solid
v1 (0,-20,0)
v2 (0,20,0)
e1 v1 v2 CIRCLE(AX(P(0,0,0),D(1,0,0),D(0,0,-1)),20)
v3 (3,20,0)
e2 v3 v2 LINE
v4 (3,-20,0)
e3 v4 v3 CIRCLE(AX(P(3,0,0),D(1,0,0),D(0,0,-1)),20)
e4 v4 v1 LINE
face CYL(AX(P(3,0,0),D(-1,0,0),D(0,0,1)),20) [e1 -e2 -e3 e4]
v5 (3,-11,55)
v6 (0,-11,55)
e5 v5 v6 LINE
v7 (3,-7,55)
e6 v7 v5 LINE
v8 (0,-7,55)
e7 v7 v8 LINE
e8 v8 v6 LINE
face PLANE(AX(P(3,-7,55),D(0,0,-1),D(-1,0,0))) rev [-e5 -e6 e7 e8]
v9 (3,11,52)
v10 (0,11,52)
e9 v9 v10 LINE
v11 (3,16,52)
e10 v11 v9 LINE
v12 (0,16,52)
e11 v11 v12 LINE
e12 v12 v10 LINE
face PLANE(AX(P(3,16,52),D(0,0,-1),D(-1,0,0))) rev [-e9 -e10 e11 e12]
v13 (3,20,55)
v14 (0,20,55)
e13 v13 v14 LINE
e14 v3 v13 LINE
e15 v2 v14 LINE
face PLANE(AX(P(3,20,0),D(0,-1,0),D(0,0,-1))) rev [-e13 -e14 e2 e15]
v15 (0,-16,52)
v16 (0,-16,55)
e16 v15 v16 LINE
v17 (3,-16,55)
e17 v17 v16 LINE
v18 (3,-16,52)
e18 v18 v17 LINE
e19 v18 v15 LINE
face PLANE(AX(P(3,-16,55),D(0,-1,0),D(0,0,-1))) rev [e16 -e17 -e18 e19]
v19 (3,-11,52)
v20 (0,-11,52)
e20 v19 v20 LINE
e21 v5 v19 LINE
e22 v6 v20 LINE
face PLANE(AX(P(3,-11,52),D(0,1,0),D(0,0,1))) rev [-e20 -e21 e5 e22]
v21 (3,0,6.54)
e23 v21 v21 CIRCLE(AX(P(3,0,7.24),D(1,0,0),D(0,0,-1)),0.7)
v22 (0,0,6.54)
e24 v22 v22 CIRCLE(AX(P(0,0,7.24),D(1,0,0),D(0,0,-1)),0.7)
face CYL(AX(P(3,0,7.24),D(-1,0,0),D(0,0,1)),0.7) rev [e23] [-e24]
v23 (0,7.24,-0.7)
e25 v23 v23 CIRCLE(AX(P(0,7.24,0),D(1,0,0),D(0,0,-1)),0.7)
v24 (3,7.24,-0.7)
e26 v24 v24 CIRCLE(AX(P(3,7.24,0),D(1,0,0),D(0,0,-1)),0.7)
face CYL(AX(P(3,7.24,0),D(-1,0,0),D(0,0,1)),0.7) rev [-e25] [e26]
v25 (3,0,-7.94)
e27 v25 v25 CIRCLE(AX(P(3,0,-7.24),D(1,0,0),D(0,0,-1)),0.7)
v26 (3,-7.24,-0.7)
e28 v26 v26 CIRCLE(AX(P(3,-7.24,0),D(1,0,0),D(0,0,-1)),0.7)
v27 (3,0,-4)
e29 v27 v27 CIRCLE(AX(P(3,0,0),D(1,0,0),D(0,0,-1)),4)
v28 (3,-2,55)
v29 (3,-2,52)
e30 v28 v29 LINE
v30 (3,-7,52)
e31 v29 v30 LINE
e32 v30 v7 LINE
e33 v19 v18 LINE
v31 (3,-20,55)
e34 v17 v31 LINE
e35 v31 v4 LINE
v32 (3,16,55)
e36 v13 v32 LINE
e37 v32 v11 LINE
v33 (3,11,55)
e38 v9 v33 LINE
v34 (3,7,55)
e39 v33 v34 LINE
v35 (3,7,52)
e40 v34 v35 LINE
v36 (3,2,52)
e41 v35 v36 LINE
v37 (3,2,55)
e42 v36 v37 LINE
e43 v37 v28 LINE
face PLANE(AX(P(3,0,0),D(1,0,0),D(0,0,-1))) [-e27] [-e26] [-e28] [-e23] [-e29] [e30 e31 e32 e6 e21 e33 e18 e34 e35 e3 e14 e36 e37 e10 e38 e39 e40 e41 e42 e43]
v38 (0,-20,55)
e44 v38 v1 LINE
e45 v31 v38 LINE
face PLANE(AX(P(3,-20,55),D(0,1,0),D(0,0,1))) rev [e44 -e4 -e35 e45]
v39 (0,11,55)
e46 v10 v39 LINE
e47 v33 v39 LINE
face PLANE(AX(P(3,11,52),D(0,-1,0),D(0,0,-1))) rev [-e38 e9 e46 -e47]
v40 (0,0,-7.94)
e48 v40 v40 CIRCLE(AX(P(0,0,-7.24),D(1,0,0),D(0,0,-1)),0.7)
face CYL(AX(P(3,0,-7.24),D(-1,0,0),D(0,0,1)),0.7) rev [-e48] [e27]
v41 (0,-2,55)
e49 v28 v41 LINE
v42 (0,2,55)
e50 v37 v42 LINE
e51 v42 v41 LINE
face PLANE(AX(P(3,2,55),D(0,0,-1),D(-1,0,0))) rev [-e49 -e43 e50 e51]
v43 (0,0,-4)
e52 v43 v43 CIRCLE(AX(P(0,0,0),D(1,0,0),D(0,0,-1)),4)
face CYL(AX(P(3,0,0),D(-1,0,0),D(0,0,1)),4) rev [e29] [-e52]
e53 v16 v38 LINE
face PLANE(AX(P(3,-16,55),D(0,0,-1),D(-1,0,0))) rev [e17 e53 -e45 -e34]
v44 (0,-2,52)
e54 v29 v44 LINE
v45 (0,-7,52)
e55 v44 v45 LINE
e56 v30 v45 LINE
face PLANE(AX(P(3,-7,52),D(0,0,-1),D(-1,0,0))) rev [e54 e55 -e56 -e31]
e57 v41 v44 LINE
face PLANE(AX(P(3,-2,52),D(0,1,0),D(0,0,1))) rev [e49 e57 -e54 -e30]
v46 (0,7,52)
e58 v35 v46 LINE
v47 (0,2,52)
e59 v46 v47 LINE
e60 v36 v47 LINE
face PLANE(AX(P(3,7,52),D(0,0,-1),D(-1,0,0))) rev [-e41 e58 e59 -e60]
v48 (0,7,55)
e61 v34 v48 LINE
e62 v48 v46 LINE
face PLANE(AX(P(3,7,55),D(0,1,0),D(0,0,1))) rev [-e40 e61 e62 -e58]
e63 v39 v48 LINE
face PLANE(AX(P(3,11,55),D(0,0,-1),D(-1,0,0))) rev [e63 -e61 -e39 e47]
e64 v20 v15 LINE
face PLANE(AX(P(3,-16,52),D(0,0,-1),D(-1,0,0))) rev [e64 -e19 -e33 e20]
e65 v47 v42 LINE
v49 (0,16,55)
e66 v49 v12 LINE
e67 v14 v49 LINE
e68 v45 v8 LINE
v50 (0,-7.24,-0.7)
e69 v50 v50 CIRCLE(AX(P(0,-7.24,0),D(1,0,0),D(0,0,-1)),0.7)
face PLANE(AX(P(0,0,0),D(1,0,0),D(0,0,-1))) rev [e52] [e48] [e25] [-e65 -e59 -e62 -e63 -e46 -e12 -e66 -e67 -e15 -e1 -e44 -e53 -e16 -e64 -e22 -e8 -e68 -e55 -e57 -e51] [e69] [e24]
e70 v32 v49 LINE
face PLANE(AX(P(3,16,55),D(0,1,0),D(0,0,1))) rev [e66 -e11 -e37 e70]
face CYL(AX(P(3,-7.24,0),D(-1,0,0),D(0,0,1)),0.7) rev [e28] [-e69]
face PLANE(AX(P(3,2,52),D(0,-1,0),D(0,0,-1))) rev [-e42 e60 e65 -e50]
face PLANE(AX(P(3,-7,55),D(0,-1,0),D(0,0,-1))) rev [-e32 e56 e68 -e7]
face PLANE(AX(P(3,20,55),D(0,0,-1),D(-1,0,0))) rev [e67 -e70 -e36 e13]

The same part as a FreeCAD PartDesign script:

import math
import FreeCAD as App
import Part
import Sketcher

V = App.Vector
Q = App.Units.Quantity

doc = App.newDocument("Part")
body = doc.addObject("PartDesign::Body", "Body")

# Sketch on YZ plane
sketch1 = body.newObject("Sketcher::SketchObject", "Sketch")
sketch1.AttachmentSupport = (doc.getObject("YZ_Plane"), [""])
sketch1.MapMode = "FlatFace"
sketch1.addGeometry([
    Part.LineSegment(V(20, 0, 0), V(20, 55, 0)),  # 0
    Part.LineSegment(V(20, 55, 0), V(16, 55, 0)),  # 1
    Part.LineSegment(V(16, 55, 0), V(16, 52, 0)),  # 2
    Part.LineSegment(V(16, 52, 0), V(11, 52, 0)),  # 3
    Part.LineSegment(V(11, 52, 0), V(11, 55, 0)),  # 4
    Part.LineSegment(V(11, 55, 0), V(7, 55, 0)),  # 5
    Part.LineSegment(V(7, 55, 0), V(7, 52, 0)),  # 6
    Part.LineSegment(V(7, 52, 0), V(2, 52, 0)),  # 7
    Part.LineSegment(V(2, 52, 0), V(2, 55, 0)),  # 8
    Part.LineSegment(V(2, 55, 0), V(-2, 55, 0)),  # 9
    Part.LineSegment(V(-2, 55, 0), V(-2, 52, 0)),  # 10
    Part.LineSegment(V(-2, 52, 0), V(-7, 52, 0)),  # 11
    Part.LineSegment(V(-7, 52, 0), V(-7, 55, 0)),  # 12
    Part.LineSegment(V(-7, 55, 0), V(-11, 55, 0)),  # 13
    Part.LineSegment(V(-11, 55, 0), V(-11, 52, 0)),  # 14
    Part.LineSegment(V(-11, 52, 0), V(-16, 52, 0)),  # 15
    Part.LineSegment(V(-16, 52, 0), V(-16, 55, 0)),  # 16
    Part.LineSegment(V(-16, 55, 0), V(-20, 55, 0)),  # 17
    Part.LineSegment(V(-20, 55, 0), V(-20, 0, 0)),  # 18
    Part.ArcOfCircle(Part.Circle(V(0, 0, 0), V(0, 0, 1), 20), math.radians(180), math.radians(360)),  # 19
    Part.Circle(V(-7.2, 0, 0), V(0, 0, 1), 0.7),  # 20
    Part.Circle(V(0, 7.2, 0), V(0, 0, 1), 0.7),  # 21
    Part.Circle(V(0, 0, 0), V(0, 0, 1), 4),  # 22
    Part.Circle(V(7.2, 0, 0), V(0, 0, 1), 0.7),  # 23
    Part.Circle(V(0, -7.2, 0), V(0, 0, 1), 0.7),  # 24
], False)
sketch1.addConstraint([
    Sketcher.Constraint("Coincident", 0, 2, 1, 1),
    Sketcher.Constraint("Coincident", 1, 2, 2, 1),
    Sketcher.Constraint("Coincident", 2, 2, 3, 1),
    Sketcher.Constraint("Coincident", 3, 2, 4, 1),
    Sketcher.Constraint("Coincident", 4, 2, 5, 1),
    Sketcher.Constraint("Coincident", 5, 2, 6, 1),
    Sketcher.Constraint("Coincident", 6, 2, 7, 1),
    Sketcher.Constraint("Coincident", 7, 2, 8, 1),
    Sketcher.Constraint("Coincident", 8, 2, 9, 1),
    Sketcher.Constraint("Coincident", 9, 2, 10, 1),
    Sketcher.Constraint("Coincident", 10, 2, 11, 1),
    Sketcher.Constraint("Coincident", 11, 2, 12, 1),
    Sketcher.Constraint("Coincident", 12, 2, 13, 1),
    Sketcher.Constraint("Coincident", 13, 2, 14, 1),
    Sketcher.Constraint("Coincident", 14, 2, 15, 1),
    Sketcher.Constraint("Coincident", 15, 2, 16, 1),
    Sketcher.Constraint("Coincident", 16, 2, 17, 1),
    Sketcher.Constraint("Coincident", 17, 2, 18, 1),
    Sketcher.Constraint("Tangent", 18, 2, 19, 1),
    Sketcher.Constraint("Tangent", 19, 2, 0, 1),
    Sketcher.Constraint("Vertical", 0),
    Sketcher.Constraint("Horizontal", 1),
    Sketcher.Constraint("Vertical", 2),
    Sketcher.Constraint("Horizontal", 3),
    Sketcher.Constraint("Vertical", 4),
    Sketcher.Constraint("Horizontal", 5),
    Sketcher.Constraint("Vertical", 6),
    Sketcher.Constraint("Horizontal", 7),
    Sketcher.Constraint("Vertical", 8),
    Sketcher.Constraint("Horizontal", 9),
    Sketcher.Constraint("Vertical", 10),
    Sketcher.Constraint("Horizontal", 11),
    Sketcher.Constraint("Vertical", 12),
    Sketcher.Constraint("Horizontal", 13),
    Sketcher.Constraint("Vertical", 14),
    Sketcher.Constraint("Horizontal", 15),
    Sketcher.Constraint("Vertical", 16),
    Sketcher.Constraint("Horizontal", 17),
    Sketcher.Constraint("Vertical", 18),
    Sketcher.Constraint("Coincident", 19, 3, -1, 1),
    Sketcher.Constraint("Coincident", 22, 3, -1, 1),
    Sketcher.Constraint("Equal", 20, 21),
    Sketcher.Constraint("Equal", 21, 23),
    Sketcher.Constraint("Equal", 23, 24),
    Sketcher.Constraint("Symmetric", 20, 3, 23, 3, -1, 1),
    Sketcher.Constraint("Symmetric", 21, 3, 24, 3, -1, 1),
    Sketcher.Constraint("Symmetric", 7, 2, 10, 2, -2),
    Sketcher.Constraint("Symmetric", 5, 2, 12, 2, -2),
    Sketcher.Constraint("Symmetric", 3, 2, 14, 2, -2),
    Sketcher.Constraint("Symmetric", 1, 2, 16, 2, -2),
    Sketcher.Constraint("PointOnObject", 20, 3, -1),
    Sketcher.Constraint("PointOnObject", 21, 3, -2),
    Sketcher.Constraint("Horizontal", 1, 2, 4, 2),
    Sketcher.Constraint("Horizontal", 3, 2, 6, 2),
    Sketcher.Constraint("Horizontal", 5, 2, 8, 2),
    Sketcher.Constraint("Equal", 1, 5),
    Sketcher.Constraint("Equal", 3, 7),
    Sketcher.Constraint("Equal", 5, 9),
    Sketcher.Constraint("Diameter", 22, Q("8 mm")),
    Sketcher.Constraint("Radius", 19, Q("20 mm")),
    Sketcher.Constraint("Diameter", 20, Q("1.4 mm")),
    Sketcher.Constraint("DistanceX", 1, 2, 1, 1, Q("4 mm")),
    Sketcher.Constraint("DistanceY", 0, 1, 0, 2, Q("55 mm")),
    Sketcher.Constraint("DistanceY", 2, 2, 2, 1, Q("3 mm")),
    Sketcher.Constraint("DistanceX", 20, 3, -1, 1, Q("7.24 mm")),
    Sketcher.Constraint("DistanceY", -1, 1, 21, 3, Q("7.24 mm")),
])
pad1 = body.newObject("PartDesign::Pad", "Pad")
pad1.Profile = sketch1
pad1.Length = 3

doc.recompute()
